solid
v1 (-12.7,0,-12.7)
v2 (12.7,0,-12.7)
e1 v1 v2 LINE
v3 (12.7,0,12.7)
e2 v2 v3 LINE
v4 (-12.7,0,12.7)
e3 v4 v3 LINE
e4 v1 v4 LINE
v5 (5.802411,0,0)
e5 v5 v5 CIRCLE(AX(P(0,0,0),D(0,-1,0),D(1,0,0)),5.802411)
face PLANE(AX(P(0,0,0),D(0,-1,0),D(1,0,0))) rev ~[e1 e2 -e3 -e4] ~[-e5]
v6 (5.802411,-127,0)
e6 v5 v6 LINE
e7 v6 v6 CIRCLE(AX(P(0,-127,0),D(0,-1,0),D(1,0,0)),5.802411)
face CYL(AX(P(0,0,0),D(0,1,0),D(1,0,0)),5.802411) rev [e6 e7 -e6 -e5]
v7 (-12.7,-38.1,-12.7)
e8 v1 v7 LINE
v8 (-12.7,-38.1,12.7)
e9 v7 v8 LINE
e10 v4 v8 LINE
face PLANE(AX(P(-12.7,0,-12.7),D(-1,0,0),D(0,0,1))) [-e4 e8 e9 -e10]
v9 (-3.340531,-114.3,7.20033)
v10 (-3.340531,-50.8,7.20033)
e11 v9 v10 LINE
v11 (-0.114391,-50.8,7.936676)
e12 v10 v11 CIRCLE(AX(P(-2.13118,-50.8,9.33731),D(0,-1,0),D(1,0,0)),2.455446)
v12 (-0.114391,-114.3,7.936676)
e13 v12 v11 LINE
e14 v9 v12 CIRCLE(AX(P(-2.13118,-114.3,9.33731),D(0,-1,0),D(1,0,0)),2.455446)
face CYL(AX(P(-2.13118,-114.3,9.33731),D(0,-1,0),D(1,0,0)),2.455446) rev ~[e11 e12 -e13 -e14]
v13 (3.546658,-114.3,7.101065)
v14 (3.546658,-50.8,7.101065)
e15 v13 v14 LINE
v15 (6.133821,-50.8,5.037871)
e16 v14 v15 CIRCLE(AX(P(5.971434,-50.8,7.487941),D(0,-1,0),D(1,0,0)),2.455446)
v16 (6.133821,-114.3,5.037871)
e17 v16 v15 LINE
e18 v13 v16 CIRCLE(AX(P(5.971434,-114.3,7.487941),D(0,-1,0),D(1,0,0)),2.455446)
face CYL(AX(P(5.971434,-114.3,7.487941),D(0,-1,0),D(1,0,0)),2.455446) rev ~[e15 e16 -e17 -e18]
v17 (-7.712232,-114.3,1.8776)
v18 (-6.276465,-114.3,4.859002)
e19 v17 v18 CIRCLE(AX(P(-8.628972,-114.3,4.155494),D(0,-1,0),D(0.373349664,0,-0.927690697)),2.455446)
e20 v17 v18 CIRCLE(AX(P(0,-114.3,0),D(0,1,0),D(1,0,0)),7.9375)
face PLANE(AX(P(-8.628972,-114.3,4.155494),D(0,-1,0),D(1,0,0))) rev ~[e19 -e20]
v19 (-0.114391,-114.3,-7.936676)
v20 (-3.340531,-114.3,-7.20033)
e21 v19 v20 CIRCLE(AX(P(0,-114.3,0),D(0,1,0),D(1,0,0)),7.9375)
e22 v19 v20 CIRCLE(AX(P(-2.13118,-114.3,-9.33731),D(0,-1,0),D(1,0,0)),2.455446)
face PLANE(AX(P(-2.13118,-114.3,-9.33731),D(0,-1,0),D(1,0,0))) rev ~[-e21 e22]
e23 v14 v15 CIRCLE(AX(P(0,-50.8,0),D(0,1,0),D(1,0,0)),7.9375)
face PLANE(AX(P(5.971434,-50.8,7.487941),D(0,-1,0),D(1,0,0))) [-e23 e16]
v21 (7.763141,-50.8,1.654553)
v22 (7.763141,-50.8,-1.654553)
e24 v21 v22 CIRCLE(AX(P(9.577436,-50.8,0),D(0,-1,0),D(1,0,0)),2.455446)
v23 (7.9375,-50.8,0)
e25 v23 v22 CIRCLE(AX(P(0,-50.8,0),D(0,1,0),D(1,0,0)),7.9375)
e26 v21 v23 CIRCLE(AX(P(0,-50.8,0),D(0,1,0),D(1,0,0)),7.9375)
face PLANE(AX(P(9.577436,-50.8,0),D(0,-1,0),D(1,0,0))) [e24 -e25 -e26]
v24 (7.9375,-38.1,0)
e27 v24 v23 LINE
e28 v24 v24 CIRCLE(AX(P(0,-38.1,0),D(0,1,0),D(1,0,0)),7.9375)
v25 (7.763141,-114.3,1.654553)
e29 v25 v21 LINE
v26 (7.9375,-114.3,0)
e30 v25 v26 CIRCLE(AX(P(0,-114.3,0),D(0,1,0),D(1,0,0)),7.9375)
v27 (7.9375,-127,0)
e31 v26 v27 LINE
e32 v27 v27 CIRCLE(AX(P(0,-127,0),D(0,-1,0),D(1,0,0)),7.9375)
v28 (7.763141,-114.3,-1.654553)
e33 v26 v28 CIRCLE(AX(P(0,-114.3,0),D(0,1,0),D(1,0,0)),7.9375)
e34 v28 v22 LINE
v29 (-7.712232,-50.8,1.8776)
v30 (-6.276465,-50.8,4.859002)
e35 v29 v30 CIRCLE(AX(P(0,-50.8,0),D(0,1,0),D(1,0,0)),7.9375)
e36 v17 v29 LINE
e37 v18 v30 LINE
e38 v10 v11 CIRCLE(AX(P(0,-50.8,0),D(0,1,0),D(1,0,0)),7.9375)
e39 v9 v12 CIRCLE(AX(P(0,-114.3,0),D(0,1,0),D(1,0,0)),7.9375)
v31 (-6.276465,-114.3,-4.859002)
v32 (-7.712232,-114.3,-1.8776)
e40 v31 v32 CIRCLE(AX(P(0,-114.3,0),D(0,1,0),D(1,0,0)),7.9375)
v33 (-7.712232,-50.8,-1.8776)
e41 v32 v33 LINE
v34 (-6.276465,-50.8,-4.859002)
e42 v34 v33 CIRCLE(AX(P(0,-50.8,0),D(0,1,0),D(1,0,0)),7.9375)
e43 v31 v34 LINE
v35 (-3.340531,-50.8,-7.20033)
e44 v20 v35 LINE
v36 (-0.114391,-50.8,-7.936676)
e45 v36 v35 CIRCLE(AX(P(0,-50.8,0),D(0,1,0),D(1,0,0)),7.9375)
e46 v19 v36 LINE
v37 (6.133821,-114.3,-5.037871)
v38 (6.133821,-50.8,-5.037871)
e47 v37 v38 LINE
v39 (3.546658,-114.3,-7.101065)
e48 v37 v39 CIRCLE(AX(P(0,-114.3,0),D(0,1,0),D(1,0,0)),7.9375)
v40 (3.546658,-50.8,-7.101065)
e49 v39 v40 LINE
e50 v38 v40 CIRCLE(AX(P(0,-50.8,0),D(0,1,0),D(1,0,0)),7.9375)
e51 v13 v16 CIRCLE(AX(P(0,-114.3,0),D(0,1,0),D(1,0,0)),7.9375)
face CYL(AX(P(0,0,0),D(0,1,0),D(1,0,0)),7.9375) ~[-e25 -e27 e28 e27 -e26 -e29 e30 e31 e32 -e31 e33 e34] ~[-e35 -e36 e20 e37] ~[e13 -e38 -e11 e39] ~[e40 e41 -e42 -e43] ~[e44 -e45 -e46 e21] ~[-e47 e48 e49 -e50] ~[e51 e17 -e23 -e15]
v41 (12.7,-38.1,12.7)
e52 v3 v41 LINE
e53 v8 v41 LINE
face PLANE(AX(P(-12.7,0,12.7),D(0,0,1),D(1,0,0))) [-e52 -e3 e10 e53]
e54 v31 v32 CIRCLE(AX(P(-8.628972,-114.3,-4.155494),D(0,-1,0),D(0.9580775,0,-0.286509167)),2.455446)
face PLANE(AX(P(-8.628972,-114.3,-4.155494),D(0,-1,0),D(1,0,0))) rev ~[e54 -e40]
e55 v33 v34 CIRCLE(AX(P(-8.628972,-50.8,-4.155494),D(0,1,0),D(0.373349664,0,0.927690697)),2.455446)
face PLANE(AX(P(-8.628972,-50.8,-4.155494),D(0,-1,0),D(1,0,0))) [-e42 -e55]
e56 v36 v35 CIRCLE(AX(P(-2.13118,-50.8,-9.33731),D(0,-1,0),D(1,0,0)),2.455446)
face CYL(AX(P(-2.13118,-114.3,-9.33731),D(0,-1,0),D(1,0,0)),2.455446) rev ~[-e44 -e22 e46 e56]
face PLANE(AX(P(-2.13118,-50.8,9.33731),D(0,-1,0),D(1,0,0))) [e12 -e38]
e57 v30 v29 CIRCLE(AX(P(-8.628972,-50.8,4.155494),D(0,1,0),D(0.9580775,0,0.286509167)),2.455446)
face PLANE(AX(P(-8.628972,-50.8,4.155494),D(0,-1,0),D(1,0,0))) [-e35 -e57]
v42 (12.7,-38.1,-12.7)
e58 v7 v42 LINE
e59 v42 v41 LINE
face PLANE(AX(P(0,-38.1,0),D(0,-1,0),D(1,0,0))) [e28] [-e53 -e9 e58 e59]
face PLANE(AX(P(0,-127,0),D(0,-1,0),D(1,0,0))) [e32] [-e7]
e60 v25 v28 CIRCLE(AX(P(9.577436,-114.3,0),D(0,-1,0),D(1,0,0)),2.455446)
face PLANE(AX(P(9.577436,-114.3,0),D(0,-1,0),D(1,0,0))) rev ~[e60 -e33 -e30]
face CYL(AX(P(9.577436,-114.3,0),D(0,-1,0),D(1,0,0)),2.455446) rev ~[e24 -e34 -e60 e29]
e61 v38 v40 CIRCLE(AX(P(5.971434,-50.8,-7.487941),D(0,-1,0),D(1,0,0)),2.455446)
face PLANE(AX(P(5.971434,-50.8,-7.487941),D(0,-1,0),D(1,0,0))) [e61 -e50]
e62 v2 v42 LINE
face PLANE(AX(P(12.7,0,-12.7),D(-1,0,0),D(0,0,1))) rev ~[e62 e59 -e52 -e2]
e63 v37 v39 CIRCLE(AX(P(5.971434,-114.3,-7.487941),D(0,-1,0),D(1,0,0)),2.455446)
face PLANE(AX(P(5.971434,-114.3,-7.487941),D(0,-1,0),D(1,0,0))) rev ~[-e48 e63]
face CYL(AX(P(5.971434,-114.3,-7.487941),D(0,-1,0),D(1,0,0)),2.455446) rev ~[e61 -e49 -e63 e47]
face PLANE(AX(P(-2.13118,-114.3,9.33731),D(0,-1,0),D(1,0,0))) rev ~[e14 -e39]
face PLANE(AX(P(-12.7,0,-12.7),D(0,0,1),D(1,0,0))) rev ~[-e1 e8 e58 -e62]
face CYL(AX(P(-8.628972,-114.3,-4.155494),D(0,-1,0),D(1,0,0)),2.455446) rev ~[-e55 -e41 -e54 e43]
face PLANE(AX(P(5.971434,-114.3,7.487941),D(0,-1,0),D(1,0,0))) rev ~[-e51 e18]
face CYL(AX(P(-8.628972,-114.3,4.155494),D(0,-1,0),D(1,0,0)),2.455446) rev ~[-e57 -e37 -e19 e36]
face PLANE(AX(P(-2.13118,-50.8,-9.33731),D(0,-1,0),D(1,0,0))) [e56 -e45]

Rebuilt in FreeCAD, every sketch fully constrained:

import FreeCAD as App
import Part
import Sketcher
Q = App.Units.Quantity

doc = App.newDocument("Part")
body = doc.addObject("PartDesign::Body", "Body")

sketch1 = body.newObject("Sketcher::SketchObject", "Sketch")
sketch1.AttachmentSupport = (doc.getObject("XZ_Plane"), [""])
sketch1.MapMode = "FlatFace"
sketch1.addGeometry([
    Part.LineSegment(App.Vector(-13, 13, 0), App.Vector(-13, -13, 0)),
    Part.LineSegment(App.Vector(-13, -13, 0), App.Vector(13, -13, 0)),
    Part.LineSegment(App.Vector(13, -13, 0), App.Vector(13, 13, 0)),
    Part.LineSegment(App.Vector(13, 13, 0), App.Vector(-13, 13, 0)),
    Part.Circle(App.Vector(0, 0, 0), App.Vector(0, 0, 1), 6),
], False)
sketch1.addConstraint([
    Sketcher.Constraint("Coincident", 0, 2, 1, 1),
    Sketcher.Constraint("Coincident", 1, 2, 2, 1),
    Sketcher.Constraint("Coincident", 2, 2, 3, 1),
    Sketcher.Constraint("Coincident", 3, 2, 0, 1),
    Sketcher.Constraint("Vertical", 0),
    Sketcher.Constraint("Horizontal", 1),
    Sketcher.Constraint("Vertical", 2),
    Sketcher.Constraint("Horizontal", 3),
    Sketcher.Constraint("Coincident", 4, 3, -1, 1),
    Sketcher.Constraint("Symmetric", 0, 2, 2, 2, -1, 1),
    Sketcher.Constraint("Equal", 3, 0),
    Sketcher.Constraint("DistanceX", 1, 1, 1, 2, Q("1 in")),
    Sketcher.Constraint("Diameter", 4, Q("11.604821 mm")),
])
pad1 = body.newObject("PartDesign::Pad", "Pad")
pad1.Profile = sketch1
pad1.Length = Q("1.5 in")

sketch2 = body.newObject("Sketcher::SketchObject", "Sketch001")
sketch2.AttachmentSupport = (doc.getObject("XZ_Plane"), [""])
sketch2.MapMode = "FlatFace"
sketch2.addGeometry([
    Part.Circle(App.Vector(0, 0, 0), App.Vector(0, 0, 1), 8),
    Part.Circle(App.Vector(0, 0, 0), App.Vector(0, 0, 1), 6),
], False)
sketch2.addConstraint([
    Sketcher.Constraint("Coincident", 0, 3, -1, 1),
    Sketcher.Constraint("Coincident", 1, 3, -1, 1),
    Sketcher.Constraint("Diameter", 0, Q("0.625 in")),
    Sketcher.Constraint("Diameter", 1, Q("11.604821 mm")),
])
pad2 = body.newObject("PartDesign::Pad", "Pad001")
pad2.Profile = sketch2
pad2.Length = Q("5 in")

sketch3 = body.newObject("Sketcher::SketchObject", "Sketch002")
sketch3.AttachmentSupport = (doc.getObject("XZ_Plane"), [""])
sketch3.MapMode = "FlatFace"
sketch3.AttachmentOffset = App.Placement(App.Vector(0, 0, 4.5 * 25.4), App.Rotation())
sketch3.addGeometry([
    Part.Circle(App.Vector(9.6, 0, 0), App.Vector(0, 0, 1), 2.5),
    Part.Circle(App.Vector(6, 7.5, 0), App.Vector(0, 0, 1), 2.5),
    Part.Circle(App.Vector(-2.1, 9.3, 0), App.Vector(0, 0, 1), 2.5),
    Part.Circle(App.Vector(-8.6, 4.2, 0), App.Vector(0, 0, 1), 2.5),
    Part.Circle(App.Vector(-8.6, -4.2, 0), App.Vector(0, 0, 1), 2.5),
    Part.Circle(App.Vector(-2.1, -9.3, 0), App.Vector(0, 0, 1), 2.5),
    Part.Circle(App.Vector(6, -7.5, 0), App.Vector(0, 0, 1), 2.5),
], False)
sketch3.addConstraint([
    Sketcher.Constraint("Equal", 0, 1),
    Sketcher.Constraint("Equal", 1, 2),
    Sketcher.Constraint("Equal", 2, 3),
    Sketcher.Constraint("Equal", 3, 4),
    Sketcher.Constraint("Equal", 4, 5),
    Sketcher.Constraint("Equal", 5, 6),
    Sketcher.Constraint("Symmetric", 3, 3, 4, 3, -1),
    Sketcher.Constraint("Symmetric", 2, 3, 5, 3, -1),
    Sketcher.Constraint("Symmetric", 1, 3, 6, 3, -1),
    Sketcher.Constraint("PointOnObject", 0, 3, -1),
    Sketcher.Constraint("Diameter", 0, Q("4.910891 mm")),
    Sketcher.Constraint("DistanceY", -1, 1, 1, 3, Q("7.487941 mm")),
    Sketcher.Constraint("DistanceX", 2, 3, -1, 1, Q("2.13118 mm")),
    Sketcher.Constraint("DistanceY", -1, 1, 2, 3, Q("9.33731 mm")),
    Sketcher.Constraint("DistanceX", 3, 3, 2, 3, Q("6.497792 mm")),
    Sketcher.Constraint("DistanceX", 3, 3, 0, 3, Q("18.206408 mm")),
    Sketcher.Constraint("DistanceX", -1, 1, 1, 3, Q("5.971434 mm")),
    Sketcher.Constraint("DistanceY", -1, 1, 3, 3, Q("4.155494 mm")),
])
pocket1 = body.newObject("PartDesign::Pocket", "Pocket")
pocket1.Profile = sketch3
pocket1.Length = Q("2.5 in")

doc.recompute()
